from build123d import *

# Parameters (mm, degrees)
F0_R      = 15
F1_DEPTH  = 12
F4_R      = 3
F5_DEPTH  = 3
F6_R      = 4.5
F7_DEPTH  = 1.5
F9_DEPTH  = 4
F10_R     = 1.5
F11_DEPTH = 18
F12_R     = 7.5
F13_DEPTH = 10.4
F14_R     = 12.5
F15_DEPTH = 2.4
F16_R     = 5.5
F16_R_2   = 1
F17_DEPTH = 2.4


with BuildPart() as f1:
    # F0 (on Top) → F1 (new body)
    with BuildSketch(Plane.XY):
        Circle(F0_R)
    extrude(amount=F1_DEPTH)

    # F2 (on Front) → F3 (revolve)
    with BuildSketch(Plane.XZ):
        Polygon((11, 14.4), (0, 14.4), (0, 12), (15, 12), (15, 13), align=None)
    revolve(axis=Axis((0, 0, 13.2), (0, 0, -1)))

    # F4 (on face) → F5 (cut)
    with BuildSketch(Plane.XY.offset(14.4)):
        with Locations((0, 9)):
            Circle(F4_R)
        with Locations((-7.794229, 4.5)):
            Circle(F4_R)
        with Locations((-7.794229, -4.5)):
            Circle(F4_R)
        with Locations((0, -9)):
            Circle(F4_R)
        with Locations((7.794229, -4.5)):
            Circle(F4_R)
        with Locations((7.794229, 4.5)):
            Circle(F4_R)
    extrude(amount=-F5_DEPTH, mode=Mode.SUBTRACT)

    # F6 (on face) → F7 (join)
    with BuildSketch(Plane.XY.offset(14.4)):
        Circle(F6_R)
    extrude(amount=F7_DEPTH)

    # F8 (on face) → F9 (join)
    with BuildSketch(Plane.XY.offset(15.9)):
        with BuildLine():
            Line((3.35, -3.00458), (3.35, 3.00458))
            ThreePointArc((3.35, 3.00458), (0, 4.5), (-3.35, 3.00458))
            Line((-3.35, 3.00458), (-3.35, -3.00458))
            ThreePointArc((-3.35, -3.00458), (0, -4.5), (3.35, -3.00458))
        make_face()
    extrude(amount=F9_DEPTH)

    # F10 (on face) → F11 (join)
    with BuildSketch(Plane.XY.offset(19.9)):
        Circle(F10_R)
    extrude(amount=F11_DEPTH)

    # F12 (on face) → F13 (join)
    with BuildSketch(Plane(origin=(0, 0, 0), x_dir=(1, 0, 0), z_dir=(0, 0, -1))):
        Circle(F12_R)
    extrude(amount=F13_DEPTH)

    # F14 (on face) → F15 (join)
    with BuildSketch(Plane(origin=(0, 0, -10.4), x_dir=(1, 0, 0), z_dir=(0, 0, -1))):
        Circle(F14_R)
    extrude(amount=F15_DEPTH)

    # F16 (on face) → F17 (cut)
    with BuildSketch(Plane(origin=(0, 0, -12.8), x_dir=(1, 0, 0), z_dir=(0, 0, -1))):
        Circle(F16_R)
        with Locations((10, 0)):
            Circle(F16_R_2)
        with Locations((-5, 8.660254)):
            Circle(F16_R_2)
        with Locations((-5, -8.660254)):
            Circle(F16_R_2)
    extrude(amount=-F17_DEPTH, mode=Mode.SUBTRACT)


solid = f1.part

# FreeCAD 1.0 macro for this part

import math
import FreeCAD as App
import Part
import Sketcher
Q = App.Units.Quantity

doc = App.newDocument("Part")
body = doc.addObject("PartDesign::Body", "Body")

# Sketch on XY plane
sketch1 = body.newObject("Sketcher::SketchObject", "Sketch")
sketch1.AttachmentSupport = (doc.getObject("XY_Plane"), [""])
sketch1.MapMode = "FlatFace"
sketch1.addGeometry(Part.Circle(App.Vector(0, 0, 0), App.Vector(0, 0, 1), 15), False)
sketch1.addConstraint([
    Sketcher.Constraint("Coincident", 0, 3, -1, 1),
    Sketcher.Constraint("Diameter", 0, Q("30 mm")),
])
pad1 = body.newObject("PartDesign::Pad", "Pad")
pad1.Profile = sketch1
pad1.Length = 12

# Sketch on XZ plane
sketch2 = body.newObject("Sketcher::SketchObject", "Sketch001")
sketch2.AttachmentSupport = (doc.getObject("XZ_Plane"), [""])
sketch2.MapMode = "FlatFace"
sketch2.addGeometry([
    Part.LineSegment(App.Vector(11, 14.4, 0), App.Vector(0, 14.4, 0)),  # 0
    Part.LineSegment(App.Vector(0, 14.4, 0), App.Vector(0, 12, 0)),  # 1
    Part.LineSegment(App.Vector(0, 12, 0), App.Vector(15, 12, 0)),  # 2
    Part.LineSegment(App.Vector(15, 12, 0), App.Vector(15, 13, 0)),  # 3
    Part.LineSegment(App.Vector(15, 13, 0), App.Vector(11, 14.4, 0)),  # 4
], False)
sketch2.addConstraint([
    Sketcher.Constraint("Coincident", 0, 2, 1, 1),
    Sketcher.Constraint("Coincident", 1, 2, 2, 1),
    Sketcher.Constraint("Coincident", 2, 2, 3, 1),
    Sketcher.Constraint("Coincident", 3, 2, 4, 1),
    Sketcher.Constraint("Coincident", 4, 2, 0, 1),
    Sketcher.Constraint("Horizontal", 0),
    Sketcher.Constraint("Vertical", 1),
    Sketcher.Constraint("Horizontal", 2),
    Sketcher.Constraint("Vertical", 3),
    Sketcher.Constraint("PointOnObject", 0, 2, -2),
    Sketcher.Constraint("DistanceX", 0, 2, 0, 1, Q("11 mm")),
    Sketcher.Constraint("DistanceX", 2, 1, 2, 2, Q("15 mm")),
    Sketcher.Constraint("DistanceY", 3, 1, 3, 2, Q("1 mm")),
    Sketcher.Constraint("DistanceY", 1, 2, 1, 1, Q("2.4 mm")),
    Sketcher.Constraint("DistanceY", -1, 1, 1, 2, Q("12 mm")),
])
revolution = body.newObject("PartDesign::Revolution", "Revolution")
revolution.Profile = sketch2
revolution.ReferenceAxis = (sketch2, ["V_Axis"])
revolution.Angle = 360

# Sketch on XY plane
sketch3 = body.newObject("Sketcher::SketchObject", "Sketch002")
sketch3.AttachmentSupport = (doc.getObject("XY_Plane"), [""])
sketch3.MapMode = "FlatFace"
sketch3.AttachmentOffset = App.Placement(App.Vector(0, 0, 14.4), App.Rotation())
sketch3.addGeometry([
    Part.Circle(App.Vector(0, 9, 0), App.Vector(0, 0, 1), 3),  # 0
    Part.Circle(App.Vector(-7.8, 4.5, 0), App.Vector(0, 0, 1), 3),  # 1
    Part.Circle(App.Vector(-7.8, -4.5, 0), App.Vector(0, 0, 1), 3),  # 2
    Part.Circle(App.Vector(0, -9, 0), App.Vector(0, 0, 1), 3),  # 3
    Part.Circle(App.Vector(7.8, -4.5, 0), App.Vector(0, 0, 1), 3),  # 4
    Part.Circle(App.Vector(7.8, 4.5, 0), App.Vector(0, 0, 1), 3),  # 5
], False)
sketch3.addConstraint([
    Sketcher.Constraint("Equal", 0, 1),
    Sketcher.Constraint("Equal", 1, 2),
    Sketcher.Constraint("Equal", 2, 3),
    Sketcher.Constraint("Equal", 3, 4),
    Sketcher.Constraint("Equal", 4, 5),
    Sketcher.Constraint("Symmetric", 0, 3, 3, 3, -1, 1),
    Sketcher.Constraint("Symmetric", 1, 3, 4, 3, -1, 1),
    Sketcher.Constraint("Symmetric", 2, 3, 5, 3, -1, 1),
    Sketcher.Constraint("Symmetric", 2, 3, 4, 3, -2),
    Sketcher.Constraint("PointOnObject", 0, 3, -2),
    Sketcher.Constraint("Diameter", 0, Q("6 mm")),
    Sketcher.Constraint("DistanceY", -1, 1, 0, 3, Q("9 mm")),
    Sketcher.Constraint("DistanceY", 2, 3, 1, 3, Q("9 mm")),
    Sketcher.Constraint("DistanceX", 1, 3, -1, 1, Q("7.794229 mm")),
])
pocket1 = body.newObject("PartDesign::Pocket", "Pocket")
pocket1.Profile = sketch3
pocket1.Length = 3

# Sketch on XY plane
sketch4 = body.newObject("Sketcher::SketchObject", "Sketch003")
sketch4.AttachmentSupport = (doc.getObject("XY_Plane"), [""])
sketch4.MapMode = "FlatFace"
sketch4.AttachmentOffset = App.Placement(App.Vector(0, 0, 14.4), App.Rotation())
sketch4.addGeometry(Part.Circle(App.Vector(0, 0, 0), App.Vector(0, 0, 1), 4.5), False)
sketch4.addConstraint([
    Sketcher.Constraint("Coincident", 0, 3, -1, 1),
    Sketcher.Constraint("Diameter", 0, Q("9 mm")),
])
pad2 = body.newObject("PartDesign::Pad", "Pad001")
pad2.Profile = sketch4
pad2.Length = 1.5

# Sketch on XY plane
sketch5 = body.newObject("Sketcher::SketchObject", "Sketch004")
sketch5.AttachmentSupport = (doc.getObject("XY_Plane"), [""])
sketch5.MapMode = "FlatFace"
sketch5.AttachmentOffset = App.Placement(App.Vector(0, 0, 15.9), App.Rotation())
sketch5.addGeometry([
    Part.LineSegment(App.Vector(3.4, -3, 0), App.Vector(3.4, 3, 0)),
    Part.ArcOfCircle(Part.Circle(App.Vector(0, 0, 0), App.Vector(0, 0, 1), 4.5), math.radians(42), math.radians(138)),
    Part.LineSegment(App.Vector(-3.4, 3, 0), App.Vector(-3.4, -3, 0)),
    Part.ArcOfCircle(Part.Circle(App.Vector(0, 0, 0), App.Vector(0, 0, 1), 4.5), math.radians(-138), math.radians(-42)),
], False)
sketch5.addConstraint([
    Sketcher.Constraint("Coincident", 0, 2, 1, 1),
    Sketcher.Constraint("Coincident", 1, 2, 2, 1),
    Sketcher.Constraint("Coincident", 2, 2, 3, 1),
    Sketcher.Constraint("Coincident", 3, 2, 0, 1),
    Sketcher.Constraint("Vertical", 0),
    Sketcher.Constraint("Vertical", 2),
    Sketcher.Constraint("Coincident", 1, 3, -1, 1),
    Sketcher.Constraint("Coincident", 3, 3, -1, 1),
    Sketcher.Constraint("Equal", 1, 3),
    Sketcher.Constraint("Horizontal", 0, 2, 1, 2),
    Sketcher.Constraint("Radius", 1, Q("4.5 mm")),
    Sketcher.Constraint("DistanceX", 1, 2, 0, 2, Q("6.7 mm")),
])
pad3 = body.newObject("PartDesign::Pad", "Pad002")
pad3.Profile = sketch5
pad3.Length = 4

# Sketch on XY plane
sketch6 = body.newObject("Sketcher::SketchObject", "Sketch005")
sketch6.AttachmentSupport = (doc.getObject("XY_Plane"), [""])
sketch6.MapMode = "FlatFace"
sketch6.AttachmentOffset = App.Placement(App.Vector(0, 0, 19.9), App.Rotation())
sketch6.addGeometry(Part.Circle(App.Vector(0, 0, 0), App.Vector(0, 0, 1), 1.5), False)
sketch6.addConstraint([
    Sketcher.Constraint("Coincident", 0, 3, -1, 1),
    Sketcher.Constraint("Diameter", 0, Q("3 mm")),
])
pad4 = body.newObject("PartDesign::Pad", "Pad003")
pad4.Profile = sketch6
pad4.Length = 18

# Sketch on XY plane
sketch7 = body.newObject("Sketcher::SketchObject", "Sketch006")
sketch7.AttachmentSupport = (doc.getObject("XY_Plane"), [""])
sketch7.MapMode = "FlatFace"
sketch7.addGeometry(Part.Circle(App.Vector(0, 0, 0), App.Vector(0, 0, 1), 8), False)
sketch7.addConstraint([
    Sketcher.Constraint("Coincident", 0, 3, -1, 1),
    Sketcher.Constraint("Diameter", 0, Q("15 mm")),
])
pad5 = body.newObject("PartDesign::Pad", "Pad004")
pad5.Profile = sketch7
pad5.Length = 10.4
pad5.Reversed = True

# Sketch on XY plane
sketch8 = body.newObject("Sketcher::SketchObject", "Sketch007")
sketch8.AttachmentSupport = (doc.getObject("XY_Plane"), [""])
sketch8.MapMode = "FlatFace"
sketch8.AttachmentOffset = App.Placement(App.Vector(0, 0, -10.4), App.Rotation())
sketch8.addGeometry(Part.Circle(App.Vector(0, 0, 0), App.Vector(0, 0, 1), 12), False)
sketch8.addConstraint([
    Sketcher.Constraint("Coincident", 0, 3, -1, 1),
    Sketcher.Constraint("Diameter", 0, Q("25 mm")),
])
pad6 = body.newObject("PartDesign::Pad", "Pad005")
pad6.Profile = sketch8
pad6.Length = 2.4
pad6.Reversed = True

# Sketch on XY plane
sketch9 = body.newObject("Sketcher::SketchObject", "Sketch008")
sketch9.AttachmentSupport = (doc.getObject("XY_Plane"), [""])
sketch9.MapMode = "FlatFace"
sketch9.AttachmentOffset = App.Placement(App.Vector(0, 0, -12.8), App.Rotation())
sketch9.addGeometry([
    Part.Circle(App.Vector(0, 0, 0), App.Vector(0, 0, 1), 5.5),
    Part.Circle(App.Vector(10, 0, 0), App.Vector(0, 0, 1), 1),
    Part.Circle(App.Vector(-5, -8.7, 0), App.Vector(0, 0, 1), 1),
    Part.Circle(App.Vector(-5, 8.7, 0), App.Vector(0, 0, 1), 1),
], False)
sketch9.addConstraint([
    Sketcher.Constraint("Coincident", 0, 3, -1, 1),
    Sketcher.Constraint("Equal", 1, 2),
    Sketcher.Constraint("Equal", 2, 3),
    Sketcher.Constraint("Symmetric", 2, 3, 3, 3, -1),
    Sketcher.Constraint("PointOnObject", 1, 3, -1),
    Sketcher.Constraint("Diameter", 0, Q("11 mm")),
    Sketcher.Constraint("Diameter", 1, Q("2 mm")),
    Sketcher.Constraint("DistanceX", -1, 1, 1, 3, Q("10 mm")),
    Sketcher.Constraint("DistanceX", 2, 3, -1, 1, Q("5 mm")),
    Sketcher.Constraint("DistanceY", 2, 3, 3, 3, Q("17.320508 mm")),
])
pocket2 = body.newObject("PartDesign::Pocket", "Pocket001")
pocket2.Profile = sketch9
pocket2.Length = 2.4
pocket2.Reversed = True

doc.recompute()
